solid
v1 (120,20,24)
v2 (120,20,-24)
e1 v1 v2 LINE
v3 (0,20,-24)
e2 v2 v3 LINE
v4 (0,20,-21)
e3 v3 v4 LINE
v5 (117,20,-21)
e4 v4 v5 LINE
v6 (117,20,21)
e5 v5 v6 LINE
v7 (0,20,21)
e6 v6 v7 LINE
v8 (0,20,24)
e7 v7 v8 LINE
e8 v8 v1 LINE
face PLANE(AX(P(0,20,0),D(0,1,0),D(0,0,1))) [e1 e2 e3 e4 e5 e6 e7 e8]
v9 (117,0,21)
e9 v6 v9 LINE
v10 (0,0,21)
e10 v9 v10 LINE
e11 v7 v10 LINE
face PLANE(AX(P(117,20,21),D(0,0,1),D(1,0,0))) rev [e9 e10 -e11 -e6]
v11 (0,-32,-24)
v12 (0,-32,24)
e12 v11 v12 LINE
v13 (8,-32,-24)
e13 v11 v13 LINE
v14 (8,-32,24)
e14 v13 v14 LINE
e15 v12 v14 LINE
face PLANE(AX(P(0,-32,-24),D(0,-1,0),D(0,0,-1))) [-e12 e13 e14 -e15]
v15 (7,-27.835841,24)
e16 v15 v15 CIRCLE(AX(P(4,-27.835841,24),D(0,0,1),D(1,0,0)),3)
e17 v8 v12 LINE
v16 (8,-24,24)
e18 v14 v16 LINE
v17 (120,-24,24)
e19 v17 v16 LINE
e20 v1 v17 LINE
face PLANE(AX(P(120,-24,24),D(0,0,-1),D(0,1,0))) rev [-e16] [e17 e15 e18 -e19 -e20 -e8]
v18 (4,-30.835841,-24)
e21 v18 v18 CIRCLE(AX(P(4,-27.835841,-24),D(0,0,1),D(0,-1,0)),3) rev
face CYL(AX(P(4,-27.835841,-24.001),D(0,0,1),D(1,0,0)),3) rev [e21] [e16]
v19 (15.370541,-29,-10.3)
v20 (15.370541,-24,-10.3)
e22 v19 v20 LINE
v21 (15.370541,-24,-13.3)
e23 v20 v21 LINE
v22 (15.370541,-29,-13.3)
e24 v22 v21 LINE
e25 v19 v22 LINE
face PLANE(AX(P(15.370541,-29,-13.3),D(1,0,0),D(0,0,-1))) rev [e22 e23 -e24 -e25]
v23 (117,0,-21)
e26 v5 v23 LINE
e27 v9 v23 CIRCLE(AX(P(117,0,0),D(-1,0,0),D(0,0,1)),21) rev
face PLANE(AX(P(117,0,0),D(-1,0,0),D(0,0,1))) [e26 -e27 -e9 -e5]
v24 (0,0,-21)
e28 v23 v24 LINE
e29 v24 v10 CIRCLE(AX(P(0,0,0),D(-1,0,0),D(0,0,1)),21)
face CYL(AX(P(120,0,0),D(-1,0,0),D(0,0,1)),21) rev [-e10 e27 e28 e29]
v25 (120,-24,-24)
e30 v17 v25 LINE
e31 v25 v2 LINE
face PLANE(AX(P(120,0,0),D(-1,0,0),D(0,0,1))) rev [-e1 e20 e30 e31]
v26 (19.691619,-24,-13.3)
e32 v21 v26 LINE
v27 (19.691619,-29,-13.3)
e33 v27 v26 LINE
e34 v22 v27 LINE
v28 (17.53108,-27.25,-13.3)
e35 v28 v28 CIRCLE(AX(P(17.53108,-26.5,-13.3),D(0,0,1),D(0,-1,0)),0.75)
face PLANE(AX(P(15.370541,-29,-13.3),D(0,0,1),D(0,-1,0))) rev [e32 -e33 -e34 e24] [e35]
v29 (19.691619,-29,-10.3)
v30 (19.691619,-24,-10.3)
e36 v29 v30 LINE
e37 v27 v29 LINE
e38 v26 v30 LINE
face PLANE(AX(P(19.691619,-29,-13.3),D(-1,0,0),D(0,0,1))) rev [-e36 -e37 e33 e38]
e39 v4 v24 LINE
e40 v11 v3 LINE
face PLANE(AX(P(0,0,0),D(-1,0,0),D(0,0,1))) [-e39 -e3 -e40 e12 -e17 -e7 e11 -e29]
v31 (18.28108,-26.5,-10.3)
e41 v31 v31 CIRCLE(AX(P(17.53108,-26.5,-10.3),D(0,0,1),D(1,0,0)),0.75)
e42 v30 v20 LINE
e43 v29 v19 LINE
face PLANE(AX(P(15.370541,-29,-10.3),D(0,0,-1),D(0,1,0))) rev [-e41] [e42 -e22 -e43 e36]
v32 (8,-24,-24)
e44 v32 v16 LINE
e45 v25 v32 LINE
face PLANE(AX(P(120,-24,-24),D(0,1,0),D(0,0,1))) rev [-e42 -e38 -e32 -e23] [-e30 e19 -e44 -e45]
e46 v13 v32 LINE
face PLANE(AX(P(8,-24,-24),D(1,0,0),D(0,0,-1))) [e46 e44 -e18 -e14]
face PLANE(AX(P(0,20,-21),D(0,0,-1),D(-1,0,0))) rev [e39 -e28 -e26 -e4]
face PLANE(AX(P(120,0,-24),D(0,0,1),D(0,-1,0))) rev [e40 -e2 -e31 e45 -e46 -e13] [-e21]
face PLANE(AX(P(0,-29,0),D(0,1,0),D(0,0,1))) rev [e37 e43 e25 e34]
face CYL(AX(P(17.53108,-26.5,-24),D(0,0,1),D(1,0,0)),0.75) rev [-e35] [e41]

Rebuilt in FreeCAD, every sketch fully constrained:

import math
import FreeCAD as App
import Part
import Sketcher
from FreeCAD import Vector
Q = App.Units.Quantity


def add_polygon(sketch, points):
    """Adds a closed chain of lines whose ends are joined by coincident constraints."""
    first, n = sketch.GeometryCount, len(points)
    for a, b in zip(points, points[1:] + points[:1]):
        sketch.addGeometry(Part.LineSegment(App.Vector(*a, 0), App.Vector(*b, 0)), False)
    for i in range(n):
        sketch.addConstraint(Sketcher.Constraint("Coincident", first + i, 2, first + (i + 1) % n, 1))

doc = App.newDocument("Part")
params = doc.addObject("Spreadsheet::Sheet", "Params")
for row, (alias, value) in enumerate([
    ("sketch1_radius", "21 mm"),
    ("sketch1_width", "24 mm"),
    ("sketch1_height", "3 mm"),
    ("pad1_length", "120 mm"),
    ("sketch2_width", "8 mm"),
    ("pad2_length", "48 mm"),
    ("sketch3_diameter", "6 mm"),
    ("sketch4_width", "24 mm"),
    ("sketch4_height", "48 mm"),
    ("pad3_length", "3 mm"),
    ("sketch5_height", "3 mm"),
    ("pad4_length", "5 mm"),
    ("sketch6_diameter", "1.5 mm"),
    ("sketch7_width", "120 mm"),
    ("sketch7_width2", "117 mm"),
    ("sketch7_height", "3 mm"),
    ("sketch7_height2", "42 mm"),
    ("pad5_length", "20 mm"),
], start=1):
    params.set(f"A{row}", alias)
    params.set(f"B{row}", "=" + value)
    params.setAlias(f"B{row}", alias)

body = doc.addObject("PartDesign::Body", "Body")

sketch1 = body.newObject("Sketcher::SketchObject", "Sketch")
sketch1.AttachmentSupport = (doc.getObject("YZ_Plane"), [""])
sketch1.MapMode = "FlatFace"
sketch1.addGeometry(Part.LineSegment(Vector(0, -24, 0), Vector(0, -21, 0)), False)
sketch1.addGeometry(Part.ArcOfCircle(Part.Circle(Vector(0, 0, 0), Vector(0, 0, 1), 21), math.radians(90), math.radians(270)), False)
sketch1.addGeometry(Part.LineSegment(Vector(0, 21, 0), Vector(0, 24, 0)), False)
sketch1.addGeometry(Part.LineSegment(Vector(0, 24, 0), Vector(-24, 24, 0)), False)
sketch1.addGeometry(Part.LineSegment(Vector(-24, 24, 0), Vector(-24, -24, 0)), False)
sketch1.addGeometry(Part.LineSegment(Vector(-24, -24, 0), Vector(0, -24, 0)), False)
sketch1.addConstraint(Sketcher.Constraint("Coincident", 0, 2, 1, 2))
sketch1.addConstraint(Sketcher.Constraint("Coincident", 1, 1, 2, 1))
sketch1.addConstraint(Sketcher.Constraint("Coincident", 2, 2, 3, 1))
sketch1.addConstraint(Sketcher.Constraint("Coincident", 3, 2, 4, 1))
sketch1.addConstraint(Sketcher.Constraint("Coincident", 4, 2, 5, 1))
sketch1.addConstraint(Sketcher.Constraint("Coincident", 5, 2, 0, 1))
sketch1.addConstraint(Sketcher.Constraint("Vertical", 0))
sketch1.addConstraint(Sketcher.Constraint("Vertical", 2))
sketch1.addConstraint(Sketcher.Constraint("Horizontal", 3))
sketch1.addConstraint(Sketcher.Constraint("Vertical", 4))
sketch1.addConstraint(Sketcher.Constraint("Horizontal", 5))
sketch1.addConstraint(Sketcher.Constraint("Coincident", 1, 3, -1, 1))
sketch1.addConstraint(Sketcher.Constraint("Symmetric", 2, 2, 5, 2, -1, 1))
sketch1.addConstraint(Sketcher.Constraint("PointOnObject", 0, 2, -2))
sketch1.addConstraint(Sketcher.Constraint("Radius", 1, Q("21 mm")))
sketch1.addConstraint(Sketcher.Constraint("DistanceX", 3, 2, 3, 1, Q("24 mm")))
sketch1.addConstraint(Sketcher.Constraint("DistanceY", 0, 1, 0, 2, Q("3 mm")))
sketch1.setExpression("Constraints[14]", "Params.sketch1_radius")
sketch1.setExpression("Constraints[15]", "Params.sketch1_width")
sketch1.setExpression("Constraints[16]", "Params.sketch1_height")
pad1 = body.newObject("PartDesign::Pad", "Pad")
pad1.Profile = sketch1
pad1.setExpression("Length", "Params.pad1_length")

sketch2 = body.newObject("Sketcher::SketchObject", "Sketch001")
sketch2.AttachmentSupport = (doc.getObject("XY_Plane"), [""])
sketch2.MapMode = "FlatFace"
sketch2.AttachmentOffset = App.Placement(Vector(0, 0, 24), App.Rotation())
add_polygon(sketch2, [(0, -24), (0, -32), (8, -32), (8, -24)])
sketch2.addConstraint(Sketcher.Constraint("Vertical", 0))
sketch2.addConstraint(Sketcher.Constraint("Horizontal", 1))
sketch2.addConstraint(Sketcher.Constraint("Vertical", 2))
sketch2.addConstraint(Sketcher.Constraint("Horizontal", 3))
sketch2.addConstraint(Sketcher.Constraint("PointOnObject", 0, 2, -2))
sketch2.addConstraint(Sketcher.Constraint("Equal", 3, 0))
sketch2.addConstraint(Sketcher.Constraint("DistanceX", 1, 1, 1, 2, Q("8 mm")))
sketch2.addConstraint(Sketcher.Constraint("DistanceY", 0, 2, -1, 1, Q("32 mm")))
sketch2.setExpression("Constraints[10]", "Params.sketch2_width")
pad2 = body.newObject("PartDesign::Pad", "Pad001")
pad2.Profile = sketch2
pad2.setExpression("Length", "Params.pad2_length")
pad2.Reversed = True

sketch3 = body.newObject("Sketcher::SketchObject", "Sketch002")
sketch3.AttachmentSupport = (doc.getObject("XY_Plane"), [""])
sketch3.MapMode = "FlatFace"
sketch3.AttachmentOffset = App.Placement(Vector(0, 0, 24), App.Rotation())
sketch3.addGeometry(Part.Circle(Vector(4, -27.8, 0), Vector(0, 0, 1), 3), False)
sketch3.addConstraint(Sketcher.Constraint("Diameter", 0, Q("6 mm")))
sketch3.addConstraint(Sketcher.Constraint("DistanceX", -1, 1, 0, 3, Q("4 mm")))
sketch3.addConstraint(Sketcher.Constraint("DistanceY", 0, 3, -1, 1, Q("27.835841 mm")))
sketch3.setExpression("Constraints[0]", "Params.sketch3_diameter")
pocket1 = body.newObject("PartDesign::Pocket", "Pocket")
pocket1.Profile = sketch3
pocket1.Type = "UpToFirst"

sketch4 = body.newObject("Sketcher::SketchObject", "Sketch003")
sketch4.AttachmentSupport = (doc.getObject("YZ_Plane"), [""])
sketch4.MapMode = "FlatFace"
sketch4.AttachmentOffset = App.Placement(Vector(0, 0, 120), App.Rotation())
add_polygon(sketch4, [(0, 24), (-24, 24), (-24, -24), (0, -24)])
sketch4.addConstraint(Sketcher.Constraint("Horizontal", 0))
sketch4.addConstraint(Sketcher.Constraint("Vertical", 1))
sketch4.addConstraint(Sketcher.Constraint("Horizontal", 2))
sketch4.addConstraint(Sketcher.Constraint("Vertical", 3))
sketch4.addConstraint(Sketcher.Constraint("Symmetric", 2, 2, 3, 2, -1, 1))
sketch4.addConstraint(Sketcher.Constraint("DistanceX", 0, 2, 0, 1, Q("24 mm")))
sketch4.addConstraint(Sketcher.Constraint("DistanceY", 1, 2, 1, 1, Q("48 mm")))
sketch4.setExpression("Constraints[9]", "Params.sketch4_width")
sketch4.setExpression("Constraints[10]", "Params.sketch4_height")
pad3 = body.newObject("PartDesign::Pad", "Pad002")
pad3.Profile = sketch4
pad3.setExpression("Length", "Params.pad3_length")
pad3.Reversed = True

sketch5 = body.newObject("Sketcher::SketchObject", "Sketch004")
sketch5.AttachmentSupport = (doc.getObject("XZ_Plane"), [""])
sketch5.MapMode = "FlatFace"
sketch5.AttachmentOffset = App.Placement(Vector(0, 0, 24), App.Rotation())
add_polygon(sketch5, [(15.4, -10.3), (15.4, -13.3), (19.7, -13.3), (19.7, -10.3)])
sketch5.addConstraint(Sketcher.Constraint("Vertical", 0))
sketch5.addConstraint(Sketcher.Constraint("Horizontal", 1))
sketch5.addConstraint(Sketcher.Constraint("Vertical", 2))
sketch5.addConstraint(Sketcher.Constraint("Horizontal", 3))
sketch5.addConstraint(Sketcher.Constraint("DistanceY", 0, 2, 0, 1, Q("3 mm")))
sketch5.addConstraint(Sketcher.Constraint("DistanceY", 0, 2, -1, 1, Q("13.3 mm")))
sketch5.addConstraint(Sketcher.Constraint("DistanceX", 1, 1, 1, 2, Q("4.321078 mm")))
sketch5.addConstraint(Sketcher.Constraint("DistanceX", -1, 1, 0, 2, Q("15.370541 mm")))
sketch5.setExpression("Constraints[8]", "Params.sketch5_height")
pad4 = body.newObject("PartDesign::Pad", "Pad003")
pad4.Profile = sketch5
pad4.setExpression("Length", "Params.pad4_length")

sketch6 = body.newObject("Sketcher::SketchObject", "Sketch005")
sketch6.AttachmentSupport = (doc.getObject("XY_Plane"), [""])
sketch6.MapMode = "FlatFace"
sketch6.AttachmentOffset = App.Placement(Vector(0, 0, -10.3), App.Rotation())
sketch6.addGeometry(Part.Circle(Vector(17.5, -26.5, 0), Vector(0, 0, 1), 0.8), False)
sketch6.addConstraint(Sketcher.Constraint("Diameter", 0, Q("1.5 mm")))
sketch6.addConstraint(Sketcher.Constraint("DistanceY", 0, 3, -1, 1, Q("26.5 mm")))
sketch6.addConstraint(Sketcher.Constraint("DistanceX", -1, 1, 0, 3, Q("17.53108 mm")))
sketch6.setExpression("Constraints[0]", "Params.sketch6_diameter")
pocket2 = body.newObject("PartDesign::Pocket", "Pocket001")
pocket2.Profile = sketch6
pocket2.Type = "ThroughAll"

sketch7 = body.newObject("Sketcher::SketchObject", "Sketch006")
sketch7.AttachmentSupport = (doc.getObject("XZ_Plane"), [""])
sketch7.MapMode = "FlatFace"
add_polygon(sketch7, [(120, -24), (0, -24), (0, -21), (117, -21), (117, 21), (0, 21), (0, 24), (120, 24)])
sketch7.addConstraint(Sketcher.Constraint("Horizontal", 0))
sketch7.addConstraint(Sketcher.Constraint("Vertical", 1))
sketch7.addConstraint(Sketcher.Constraint("Horizontal", 2))
sketch7.addConstraint(Sketcher.Constraint("Vertical", 3))
sketch7.addConstraint(Sketcher.Constraint("Horizontal", 4))
sketch7.addConstraint(Sketcher.Constraint("Vertical", 5))
sketch7.addConstraint(Sketcher.Constraint("Horizontal", 6))
sketch7.addConstraint(Sketcher.Constraint("Vertical", 7))
sketch7.addConstraint(Sketcher.Constraint("Symmetric", 1, 2, 4, 2, -1, 1))
sketch7.addConstraint(Sketcher.Constraint("Symmetric", 0, 2, 5, 2, -1))
sketch7.addConstraint(Sketcher.Constraint("DistanceX", 0, 2, 0, 1, Q("120 mm")))
sketch7.addConstraint(Sketcher.Constraint("DistanceX", 2, 1, 2, 2, Q("117 mm")))
sketch7.addConstraint(Sketcher.Constraint("DistanceY", 1, 1, 1, 2, Q("3 mm")))
sketch7.addConstraint(Sketcher.Constraint("DistanceY", 3, 1, 3, 2, Q("42 mm")))
sketch7.setExpression("Constraints[18]", "Params.sketch7_width")
sketch7.setExpression("Constraints[19]", "Params.sketch7_width2")
sketch7.setExpression("Constraints[20]", "Params.sketch7_height")
sketch7.setExpression("Constraints[21]", "Params.sketch7_height2")
pad5 = body.newObject("PartDesign::Pad", "Pad004")
pad5.Profile = sketch7
pad5.setExpression("Length", "Params.pad5_length")
pad5.Reversed = True

doc.recompute()
